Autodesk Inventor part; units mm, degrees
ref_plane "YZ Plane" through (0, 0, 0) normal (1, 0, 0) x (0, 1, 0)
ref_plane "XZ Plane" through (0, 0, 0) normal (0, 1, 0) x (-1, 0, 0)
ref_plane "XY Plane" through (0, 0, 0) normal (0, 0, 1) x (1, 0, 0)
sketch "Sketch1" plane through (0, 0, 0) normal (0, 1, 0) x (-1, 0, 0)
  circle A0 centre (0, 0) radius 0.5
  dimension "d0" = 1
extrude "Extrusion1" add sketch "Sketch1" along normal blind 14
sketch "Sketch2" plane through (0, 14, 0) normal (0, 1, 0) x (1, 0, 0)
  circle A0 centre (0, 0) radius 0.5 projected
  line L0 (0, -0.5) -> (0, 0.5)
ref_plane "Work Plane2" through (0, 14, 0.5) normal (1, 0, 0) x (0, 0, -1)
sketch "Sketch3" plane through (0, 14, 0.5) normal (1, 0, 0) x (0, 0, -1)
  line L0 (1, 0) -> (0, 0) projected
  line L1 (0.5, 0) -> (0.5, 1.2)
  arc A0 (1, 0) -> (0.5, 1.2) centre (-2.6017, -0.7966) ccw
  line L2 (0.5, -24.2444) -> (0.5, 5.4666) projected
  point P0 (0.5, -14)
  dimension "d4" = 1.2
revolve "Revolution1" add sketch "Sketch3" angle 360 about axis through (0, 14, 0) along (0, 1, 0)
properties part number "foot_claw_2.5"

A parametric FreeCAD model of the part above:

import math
import FreeCAD as App
import Part
import Sketcher
from FreeCAD import Vector

doc = App.newDocument("Part")
body = doc.addObject("PartDesign::Body", "Body")

sketch1 = doc.addObject("Sketcher::SketchObject", "Sketch")
body.addObject(sketch1)
sketch1.AttachmentSupport = (doc.XZ_Plane, [""])
sketch1.MapMode = "FlatFace"
sketch1.addGeometry(Part.Circle(Vector(0, 0, 0), Vector(0, 0, 1), 0.5), False)
sketch1.addConstraint([
    Sketcher.Constraint("Coincident", 0, 3, -1, 1),
    Sketcher.Constraint("Diameter", 0, 1.0),
])
pad1 = doc.addObject("PartDesign::Pad", "Pad")
body.addObject(pad1)
pad1.Profile = sketch1
pad1.Length = 14
pad1.Reversed = True

sketch2 = doc.addObject("Sketcher::SketchObject", "Sketch001")
body.addObject(sketch2)
sketch2.AttachmentSupport = (doc.YZ_Plane, [""])
sketch2.MapMode = "FlatFace"
sketch2.addGeometry([
    Part.LineSegment(Vector(14, 0, 0), Vector(14, -0.5, 0)),
    Part.ArcOfCircle(Part.Circle(Vector(13.2034, 3.1017, 0), Vector(0, 0, 1), 3.688742), math.radians(-77.528474), math.radians(-57.23015)),
    Part.LineSegment(Vector(15.2, 0, 0), Vector(14, 0, 0)),
], False)
sketch2.addConstraint([
    Sketcher.Constraint("Coincident", 0, 2, 1, 1),
    Sketcher.Constraint("Coincident", 1, 2, 2, 1),
    Sketcher.Constraint("Coincident", 2, 2, 0, 1),
    Sketcher.Constraint("Vertical", 0),
    Sketcher.Constraint("Horizontal", 2),
    Sketcher.Constraint("PointOnObject", 1, 2, -1),
    Sketcher.Constraint("DistanceX", 2, 2, 2, 1, 1.2),
    Sketcher.Constraint("DistanceY", 0, 2, 0, 1, 0.5),
    Sketcher.Constraint("DistanceX", -1, 1, 0, 2, 14.0),
    Sketcher.Constraint("Radius", 1, 3.6887),
])
revolution = doc.addObject("PartDesign::Revolution", "Revolution")
body.addObject(revolution)
revolution.Profile = sketch2
revolution.ReferenceAxis = (sketch2, ["H_Axis"])
revolution.Angle = 360

doc.recompute()
